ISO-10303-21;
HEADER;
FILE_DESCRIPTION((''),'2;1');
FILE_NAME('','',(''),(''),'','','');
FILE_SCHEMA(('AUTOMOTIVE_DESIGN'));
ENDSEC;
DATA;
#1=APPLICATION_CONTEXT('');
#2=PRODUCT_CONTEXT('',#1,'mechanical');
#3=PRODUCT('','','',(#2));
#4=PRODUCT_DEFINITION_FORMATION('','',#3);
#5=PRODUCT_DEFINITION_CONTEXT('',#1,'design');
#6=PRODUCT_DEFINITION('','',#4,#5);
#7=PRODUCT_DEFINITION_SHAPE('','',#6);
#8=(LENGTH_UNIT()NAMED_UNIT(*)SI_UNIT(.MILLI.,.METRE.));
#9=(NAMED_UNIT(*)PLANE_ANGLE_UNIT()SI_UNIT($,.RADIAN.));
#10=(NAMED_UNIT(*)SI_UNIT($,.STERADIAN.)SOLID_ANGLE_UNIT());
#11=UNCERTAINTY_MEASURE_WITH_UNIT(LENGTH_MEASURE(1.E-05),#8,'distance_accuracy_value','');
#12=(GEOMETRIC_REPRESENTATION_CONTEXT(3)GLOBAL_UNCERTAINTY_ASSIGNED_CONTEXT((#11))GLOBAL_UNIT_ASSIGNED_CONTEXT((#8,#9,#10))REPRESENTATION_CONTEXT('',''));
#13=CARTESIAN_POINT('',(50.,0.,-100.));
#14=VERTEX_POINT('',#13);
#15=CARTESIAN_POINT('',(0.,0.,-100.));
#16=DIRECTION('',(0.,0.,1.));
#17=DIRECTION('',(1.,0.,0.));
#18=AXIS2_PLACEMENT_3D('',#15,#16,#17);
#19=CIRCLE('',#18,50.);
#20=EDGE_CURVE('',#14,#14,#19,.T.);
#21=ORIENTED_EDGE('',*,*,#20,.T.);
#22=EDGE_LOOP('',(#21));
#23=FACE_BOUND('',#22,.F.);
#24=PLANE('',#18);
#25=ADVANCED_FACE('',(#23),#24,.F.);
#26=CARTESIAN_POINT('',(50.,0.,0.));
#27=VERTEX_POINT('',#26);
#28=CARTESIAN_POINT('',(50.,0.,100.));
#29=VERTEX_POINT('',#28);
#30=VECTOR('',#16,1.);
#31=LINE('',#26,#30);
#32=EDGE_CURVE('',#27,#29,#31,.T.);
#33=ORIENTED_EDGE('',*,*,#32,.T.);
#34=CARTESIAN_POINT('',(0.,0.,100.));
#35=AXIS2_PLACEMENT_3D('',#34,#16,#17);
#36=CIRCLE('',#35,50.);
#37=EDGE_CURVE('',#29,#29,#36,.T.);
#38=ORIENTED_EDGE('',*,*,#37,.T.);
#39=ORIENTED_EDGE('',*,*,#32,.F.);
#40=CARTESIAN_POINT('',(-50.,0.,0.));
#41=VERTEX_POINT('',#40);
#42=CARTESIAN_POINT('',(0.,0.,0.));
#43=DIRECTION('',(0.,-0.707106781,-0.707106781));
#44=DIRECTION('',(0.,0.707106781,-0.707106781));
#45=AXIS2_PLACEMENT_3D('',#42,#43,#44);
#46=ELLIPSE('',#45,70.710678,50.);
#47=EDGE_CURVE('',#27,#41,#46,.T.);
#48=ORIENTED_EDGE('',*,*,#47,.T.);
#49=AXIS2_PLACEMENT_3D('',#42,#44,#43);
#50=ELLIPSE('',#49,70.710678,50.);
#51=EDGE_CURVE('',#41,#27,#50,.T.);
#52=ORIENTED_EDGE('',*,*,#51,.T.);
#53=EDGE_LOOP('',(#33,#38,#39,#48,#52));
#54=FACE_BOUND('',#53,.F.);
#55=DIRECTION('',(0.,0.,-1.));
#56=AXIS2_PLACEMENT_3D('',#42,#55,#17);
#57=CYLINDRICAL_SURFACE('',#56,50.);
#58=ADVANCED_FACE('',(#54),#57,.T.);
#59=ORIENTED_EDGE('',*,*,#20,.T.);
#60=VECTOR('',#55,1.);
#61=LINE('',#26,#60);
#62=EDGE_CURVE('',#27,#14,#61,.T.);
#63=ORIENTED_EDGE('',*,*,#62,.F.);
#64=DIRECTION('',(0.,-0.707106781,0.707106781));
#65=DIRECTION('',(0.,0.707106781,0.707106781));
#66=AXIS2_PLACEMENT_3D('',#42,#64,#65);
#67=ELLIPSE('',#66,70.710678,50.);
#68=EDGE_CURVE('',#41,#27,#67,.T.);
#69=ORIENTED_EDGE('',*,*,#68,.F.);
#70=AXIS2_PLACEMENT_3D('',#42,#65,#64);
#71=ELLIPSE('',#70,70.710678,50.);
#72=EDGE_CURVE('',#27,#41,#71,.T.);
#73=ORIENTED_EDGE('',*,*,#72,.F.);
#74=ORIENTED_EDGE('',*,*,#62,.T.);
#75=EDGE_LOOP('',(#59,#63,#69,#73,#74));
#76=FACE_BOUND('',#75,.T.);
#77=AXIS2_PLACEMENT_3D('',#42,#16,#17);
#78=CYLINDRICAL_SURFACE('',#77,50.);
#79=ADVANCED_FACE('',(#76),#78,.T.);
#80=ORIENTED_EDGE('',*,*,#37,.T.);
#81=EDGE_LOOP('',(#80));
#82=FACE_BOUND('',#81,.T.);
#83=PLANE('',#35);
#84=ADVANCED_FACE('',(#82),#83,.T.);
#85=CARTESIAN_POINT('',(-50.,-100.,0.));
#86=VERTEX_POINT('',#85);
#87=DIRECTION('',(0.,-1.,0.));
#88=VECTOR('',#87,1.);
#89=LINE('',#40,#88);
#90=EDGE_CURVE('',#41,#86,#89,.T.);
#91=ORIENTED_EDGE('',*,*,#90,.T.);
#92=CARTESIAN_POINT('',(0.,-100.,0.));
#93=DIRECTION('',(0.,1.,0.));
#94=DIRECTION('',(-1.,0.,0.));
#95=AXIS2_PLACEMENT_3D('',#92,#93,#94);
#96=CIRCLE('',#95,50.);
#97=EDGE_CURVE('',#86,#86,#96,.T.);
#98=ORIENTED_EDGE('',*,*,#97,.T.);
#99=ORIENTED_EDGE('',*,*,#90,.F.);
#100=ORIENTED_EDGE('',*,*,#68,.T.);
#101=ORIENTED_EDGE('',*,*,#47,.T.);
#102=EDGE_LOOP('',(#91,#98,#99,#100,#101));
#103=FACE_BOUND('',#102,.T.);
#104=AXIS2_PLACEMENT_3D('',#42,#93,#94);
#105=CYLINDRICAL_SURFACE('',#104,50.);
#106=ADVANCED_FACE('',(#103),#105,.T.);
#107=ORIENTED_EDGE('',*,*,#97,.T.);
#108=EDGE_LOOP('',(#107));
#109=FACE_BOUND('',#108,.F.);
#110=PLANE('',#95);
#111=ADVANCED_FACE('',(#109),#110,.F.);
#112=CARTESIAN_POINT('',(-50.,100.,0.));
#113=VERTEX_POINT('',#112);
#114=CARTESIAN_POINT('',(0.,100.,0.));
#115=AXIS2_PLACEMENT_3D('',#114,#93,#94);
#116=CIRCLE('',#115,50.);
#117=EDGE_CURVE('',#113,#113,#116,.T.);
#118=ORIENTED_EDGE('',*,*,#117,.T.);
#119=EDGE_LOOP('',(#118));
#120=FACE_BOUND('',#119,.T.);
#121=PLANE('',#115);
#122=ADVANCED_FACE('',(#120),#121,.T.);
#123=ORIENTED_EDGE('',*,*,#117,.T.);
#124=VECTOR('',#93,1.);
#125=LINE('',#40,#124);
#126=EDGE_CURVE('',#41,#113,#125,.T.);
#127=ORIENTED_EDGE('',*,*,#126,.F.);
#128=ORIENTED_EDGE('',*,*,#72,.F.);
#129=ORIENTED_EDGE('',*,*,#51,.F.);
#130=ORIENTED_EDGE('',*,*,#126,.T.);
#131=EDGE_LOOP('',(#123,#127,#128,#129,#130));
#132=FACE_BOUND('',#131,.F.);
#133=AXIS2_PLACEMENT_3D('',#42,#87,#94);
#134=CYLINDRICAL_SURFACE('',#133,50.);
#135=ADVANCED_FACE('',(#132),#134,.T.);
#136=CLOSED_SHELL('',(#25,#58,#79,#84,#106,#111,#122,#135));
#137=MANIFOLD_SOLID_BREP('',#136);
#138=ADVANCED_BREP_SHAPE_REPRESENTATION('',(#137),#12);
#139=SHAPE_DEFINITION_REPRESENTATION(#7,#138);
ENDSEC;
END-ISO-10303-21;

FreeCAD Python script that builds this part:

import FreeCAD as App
import Part
import Sketcher

V = App.Vector
Q = App.Units.Quantity

doc = App.newDocument("Part")
params = doc.addObject("Spreadsheet::Sheet", "Params")
for row, (alias, value) in enumerate([
    ("sketch1_diameter", "3.937 in"),
    ("pad1_length", "200 mm"),
    ("sketch2_diameter", "3.937 in"),
    ("pad2_length", "200 mm"),
], start=1):
    params.set(f"A{row}", alias)
    params.set(f"B{row}", "=" + value)
    params.setAlias(f"B{row}", alias)

body = doc.addObject("PartDesign::Body", "Body")

# Sketch on XY plane
sketch1 = body.newObject("Sketcher::SketchObject", "Sketch")
sketch1.AttachmentSupport = (doc.getObject("XY_Plane"), [""])
sketch1.MapMode = "FlatFace"
sketch1.addGeometry(Part.Circle(V(0, 0, 0), V(0, 0, 1), 50), False)
sketch1.addConstraint(Sketcher.Constraint("Coincident", 0, 3, -1, 1))
sketch1.addConstraint(Sketcher.Constraint("Diameter", 0, Q("3.937 in")))
sketch1.setExpression("Constraints[1]", "Params.sketch1_diameter")
pad1 = body.newObject("PartDesign::Pad", "Pad")
pad1.Profile = sketch1
pad1.setExpression("Length", "Params.pad1_length")
pad1.Midplane = True

# Sketch on XZ plane
sketch2 = body.newObject("Sketcher::SketchObject", "Sketch001")
sketch2.AttachmentSupport = (doc.getObject("XZ_Plane"), [""])
sketch2.MapMode = "FlatFace"
sketch2.addGeometry(Part.Circle(V(0, 0, 0), V(0, 0, 1), 50), False)
sketch2.addConstraint(Sketcher.Constraint("Coincident", 0, 3, -1, 1))
sketch2.addConstraint(Sketcher.Constraint("Diameter", 0, Q("3.937 in")))
sketch2.setExpression("Constraints[1]", "Params.sketch2_diameter")
pad2 = body.newObject("PartDesign::Pad", "Pad001")
pad2.Profile = sketch2
pad2.setExpression("Length", "Params.pad2_length")
pad2.Midplane = True

doc.recompute()
